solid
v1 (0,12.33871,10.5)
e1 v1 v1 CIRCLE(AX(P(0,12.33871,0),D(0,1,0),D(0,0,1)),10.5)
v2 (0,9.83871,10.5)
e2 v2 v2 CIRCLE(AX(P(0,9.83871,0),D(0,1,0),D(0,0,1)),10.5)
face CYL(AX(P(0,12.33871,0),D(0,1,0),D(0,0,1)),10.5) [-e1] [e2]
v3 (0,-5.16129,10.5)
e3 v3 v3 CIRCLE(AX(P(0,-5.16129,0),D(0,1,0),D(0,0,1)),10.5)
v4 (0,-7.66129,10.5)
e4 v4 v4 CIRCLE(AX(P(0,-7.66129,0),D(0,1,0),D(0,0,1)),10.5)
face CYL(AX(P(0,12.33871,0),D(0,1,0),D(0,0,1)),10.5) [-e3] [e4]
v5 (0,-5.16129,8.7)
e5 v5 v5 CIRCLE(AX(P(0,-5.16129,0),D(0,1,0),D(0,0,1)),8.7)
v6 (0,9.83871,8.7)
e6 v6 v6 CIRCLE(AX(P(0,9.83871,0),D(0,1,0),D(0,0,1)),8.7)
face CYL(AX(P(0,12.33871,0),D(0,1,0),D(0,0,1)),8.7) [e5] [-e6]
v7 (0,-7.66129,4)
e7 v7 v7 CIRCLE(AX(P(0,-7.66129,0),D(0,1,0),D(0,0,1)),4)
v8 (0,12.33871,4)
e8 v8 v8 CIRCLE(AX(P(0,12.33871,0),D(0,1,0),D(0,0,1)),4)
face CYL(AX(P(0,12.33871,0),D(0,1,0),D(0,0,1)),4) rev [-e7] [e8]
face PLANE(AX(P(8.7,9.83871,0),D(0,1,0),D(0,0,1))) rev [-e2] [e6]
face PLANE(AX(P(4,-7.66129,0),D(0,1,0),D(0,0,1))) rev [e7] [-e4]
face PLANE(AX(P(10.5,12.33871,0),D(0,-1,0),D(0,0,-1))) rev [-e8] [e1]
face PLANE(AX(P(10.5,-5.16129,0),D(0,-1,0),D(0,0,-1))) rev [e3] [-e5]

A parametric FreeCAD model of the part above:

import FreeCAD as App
import Part
import Sketcher
from FreeCAD import Vector

doc = App.newDocument("Part")
params = doc.addObject("Spreadsheet::Sheet", "Params")
for row, (alias, value) in enumerate([
    ("sketch1_height", "15 mm"),
    ("sketch1_height2", "20 mm"),
    ("sketch1_width", "6.5 mm"),
    ("sketch1_width2", "1.8 mm"),
    ("revolution_angle", "360 deg"),
], start=1):
    params.set(f"A{row}", alias)
    params.set(f"B{row}", "=" + value)
    params.setAlias(f"B{row}", alias)

body = doc.addObject("PartDesign::Body", "Body")

sketch1 = body.newObject("Sketcher::SketchObject", "Sketch")
sketch1.AttachmentSupport = (doc.getObject("XY_Plane"), [""])
sketch1.MapMode = "FlatFace"
sketch1.addGeometry([
    Part.LineSegment(Vector(4, -7.66129, 0), Vector(10.5, -7.66129, 0)),
    Part.LineSegment(Vector(10.5, -7.66129, 0), Vector(10.5, -5.16129, 0)),
    Part.LineSegment(Vector(10.5, -5.16129, 0), Vector(8.7, -5.16129, 0)),
    Part.LineSegment(Vector(8.7, -5.16129, 0), Vector(8.7, 9.83871, 0)),
    Part.LineSegment(Vector(8.7, 9.83871, 0), Vector(10.5, 9.83871, 0)),
    Part.LineSegment(Vector(10.5, 9.83871, 0), Vector(10.5, 12.33871, 0)),
    Part.LineSegment(Vector(10.5, 12.33871, 0), Vector(4, 12.33871, 0)),
    Part.LineSegment(Vector(4, 12.33871, 0), Vector(4, -7.66129, 0)),
], False)
sketch1.addConstraint([
    Sketcher.Constraint("Coincident", 0, 2, 1, 1),
    Sketcher.Constraint("Coincident", 1, 2, 2, 1),
    Sketcher.Constraint("Coincident", 2, 2, 3, 1),
    Sketcher.Constraint("Coincident", 3, 2, 4, 1),
    Sketcher.Constraint("Coincident", 4, 2, 5, 1),
    Sketcher.Constraint("Coincident", 5, 2, 6, 1),
    Sketcher.Constraint("Coincident", 6, 2, 7, 1),
    Sketcher.Constraint("Coincident", 7, 2, 0, 1),
    Sketcher.Constraint("Horizontal", 0),
    Sketcher.Constraint("Vertical", 1),
    Sketcher.Constraint("Horizontal", 2),
    Sketcher.Constraint("Vertical", 3),
    Sketcher.Constraint("Horizontal", 4),
    Sketcher.Constraint("Vertical", 5),
    Sketcher.Constraint("Horizontal", 6),
    Sketcher.Constraint("Vertical", 7),
    Sketcher.Constraint("Vertical", 1, 2, 4, 2),
    Sketcher.Constraint("Equal", 1, 5),
    Sketcher.Constraint("DistanceY", 3, 1, 3, 2, 15.0),
    Sketcher.Constraint("DistanceY", 7, 2, 7, 1, 20.0),
    Sketcher.Constraint("DistanceX", 0, 1, 0, 2, 6.5),
    Sketcher.Constraint("DistanceX", 2, 2, 2, 1, 1.8),
    Sketcher.Constraint("DistanceX", -1, 1, 6, 2, 4.0),
    Sketcher.Constraint("DistanceY", 0, 2, -1, 1, 7.66129),
])
sketch1.setExpression("Constraints[18]", "Params.sketch1_height")
sketch1.setExpression("Constraints[19]", "Params.sketch1_height2")
sketch1.setExpression("Constraints[20]", "Params.sketch1_width")
sketch1.setExpression("Constraints[21]", "Params.sketch1_width2")
revolution = body.newObject("PartDesign::Revolution", "Revolution")
revolution.Profile = sketch1
revolution.ReferenceAxis = (sketch1, ["V_Axis"])
revolution.setExpression("Angle", "Params.revolution_angle")

doc.recompute()
